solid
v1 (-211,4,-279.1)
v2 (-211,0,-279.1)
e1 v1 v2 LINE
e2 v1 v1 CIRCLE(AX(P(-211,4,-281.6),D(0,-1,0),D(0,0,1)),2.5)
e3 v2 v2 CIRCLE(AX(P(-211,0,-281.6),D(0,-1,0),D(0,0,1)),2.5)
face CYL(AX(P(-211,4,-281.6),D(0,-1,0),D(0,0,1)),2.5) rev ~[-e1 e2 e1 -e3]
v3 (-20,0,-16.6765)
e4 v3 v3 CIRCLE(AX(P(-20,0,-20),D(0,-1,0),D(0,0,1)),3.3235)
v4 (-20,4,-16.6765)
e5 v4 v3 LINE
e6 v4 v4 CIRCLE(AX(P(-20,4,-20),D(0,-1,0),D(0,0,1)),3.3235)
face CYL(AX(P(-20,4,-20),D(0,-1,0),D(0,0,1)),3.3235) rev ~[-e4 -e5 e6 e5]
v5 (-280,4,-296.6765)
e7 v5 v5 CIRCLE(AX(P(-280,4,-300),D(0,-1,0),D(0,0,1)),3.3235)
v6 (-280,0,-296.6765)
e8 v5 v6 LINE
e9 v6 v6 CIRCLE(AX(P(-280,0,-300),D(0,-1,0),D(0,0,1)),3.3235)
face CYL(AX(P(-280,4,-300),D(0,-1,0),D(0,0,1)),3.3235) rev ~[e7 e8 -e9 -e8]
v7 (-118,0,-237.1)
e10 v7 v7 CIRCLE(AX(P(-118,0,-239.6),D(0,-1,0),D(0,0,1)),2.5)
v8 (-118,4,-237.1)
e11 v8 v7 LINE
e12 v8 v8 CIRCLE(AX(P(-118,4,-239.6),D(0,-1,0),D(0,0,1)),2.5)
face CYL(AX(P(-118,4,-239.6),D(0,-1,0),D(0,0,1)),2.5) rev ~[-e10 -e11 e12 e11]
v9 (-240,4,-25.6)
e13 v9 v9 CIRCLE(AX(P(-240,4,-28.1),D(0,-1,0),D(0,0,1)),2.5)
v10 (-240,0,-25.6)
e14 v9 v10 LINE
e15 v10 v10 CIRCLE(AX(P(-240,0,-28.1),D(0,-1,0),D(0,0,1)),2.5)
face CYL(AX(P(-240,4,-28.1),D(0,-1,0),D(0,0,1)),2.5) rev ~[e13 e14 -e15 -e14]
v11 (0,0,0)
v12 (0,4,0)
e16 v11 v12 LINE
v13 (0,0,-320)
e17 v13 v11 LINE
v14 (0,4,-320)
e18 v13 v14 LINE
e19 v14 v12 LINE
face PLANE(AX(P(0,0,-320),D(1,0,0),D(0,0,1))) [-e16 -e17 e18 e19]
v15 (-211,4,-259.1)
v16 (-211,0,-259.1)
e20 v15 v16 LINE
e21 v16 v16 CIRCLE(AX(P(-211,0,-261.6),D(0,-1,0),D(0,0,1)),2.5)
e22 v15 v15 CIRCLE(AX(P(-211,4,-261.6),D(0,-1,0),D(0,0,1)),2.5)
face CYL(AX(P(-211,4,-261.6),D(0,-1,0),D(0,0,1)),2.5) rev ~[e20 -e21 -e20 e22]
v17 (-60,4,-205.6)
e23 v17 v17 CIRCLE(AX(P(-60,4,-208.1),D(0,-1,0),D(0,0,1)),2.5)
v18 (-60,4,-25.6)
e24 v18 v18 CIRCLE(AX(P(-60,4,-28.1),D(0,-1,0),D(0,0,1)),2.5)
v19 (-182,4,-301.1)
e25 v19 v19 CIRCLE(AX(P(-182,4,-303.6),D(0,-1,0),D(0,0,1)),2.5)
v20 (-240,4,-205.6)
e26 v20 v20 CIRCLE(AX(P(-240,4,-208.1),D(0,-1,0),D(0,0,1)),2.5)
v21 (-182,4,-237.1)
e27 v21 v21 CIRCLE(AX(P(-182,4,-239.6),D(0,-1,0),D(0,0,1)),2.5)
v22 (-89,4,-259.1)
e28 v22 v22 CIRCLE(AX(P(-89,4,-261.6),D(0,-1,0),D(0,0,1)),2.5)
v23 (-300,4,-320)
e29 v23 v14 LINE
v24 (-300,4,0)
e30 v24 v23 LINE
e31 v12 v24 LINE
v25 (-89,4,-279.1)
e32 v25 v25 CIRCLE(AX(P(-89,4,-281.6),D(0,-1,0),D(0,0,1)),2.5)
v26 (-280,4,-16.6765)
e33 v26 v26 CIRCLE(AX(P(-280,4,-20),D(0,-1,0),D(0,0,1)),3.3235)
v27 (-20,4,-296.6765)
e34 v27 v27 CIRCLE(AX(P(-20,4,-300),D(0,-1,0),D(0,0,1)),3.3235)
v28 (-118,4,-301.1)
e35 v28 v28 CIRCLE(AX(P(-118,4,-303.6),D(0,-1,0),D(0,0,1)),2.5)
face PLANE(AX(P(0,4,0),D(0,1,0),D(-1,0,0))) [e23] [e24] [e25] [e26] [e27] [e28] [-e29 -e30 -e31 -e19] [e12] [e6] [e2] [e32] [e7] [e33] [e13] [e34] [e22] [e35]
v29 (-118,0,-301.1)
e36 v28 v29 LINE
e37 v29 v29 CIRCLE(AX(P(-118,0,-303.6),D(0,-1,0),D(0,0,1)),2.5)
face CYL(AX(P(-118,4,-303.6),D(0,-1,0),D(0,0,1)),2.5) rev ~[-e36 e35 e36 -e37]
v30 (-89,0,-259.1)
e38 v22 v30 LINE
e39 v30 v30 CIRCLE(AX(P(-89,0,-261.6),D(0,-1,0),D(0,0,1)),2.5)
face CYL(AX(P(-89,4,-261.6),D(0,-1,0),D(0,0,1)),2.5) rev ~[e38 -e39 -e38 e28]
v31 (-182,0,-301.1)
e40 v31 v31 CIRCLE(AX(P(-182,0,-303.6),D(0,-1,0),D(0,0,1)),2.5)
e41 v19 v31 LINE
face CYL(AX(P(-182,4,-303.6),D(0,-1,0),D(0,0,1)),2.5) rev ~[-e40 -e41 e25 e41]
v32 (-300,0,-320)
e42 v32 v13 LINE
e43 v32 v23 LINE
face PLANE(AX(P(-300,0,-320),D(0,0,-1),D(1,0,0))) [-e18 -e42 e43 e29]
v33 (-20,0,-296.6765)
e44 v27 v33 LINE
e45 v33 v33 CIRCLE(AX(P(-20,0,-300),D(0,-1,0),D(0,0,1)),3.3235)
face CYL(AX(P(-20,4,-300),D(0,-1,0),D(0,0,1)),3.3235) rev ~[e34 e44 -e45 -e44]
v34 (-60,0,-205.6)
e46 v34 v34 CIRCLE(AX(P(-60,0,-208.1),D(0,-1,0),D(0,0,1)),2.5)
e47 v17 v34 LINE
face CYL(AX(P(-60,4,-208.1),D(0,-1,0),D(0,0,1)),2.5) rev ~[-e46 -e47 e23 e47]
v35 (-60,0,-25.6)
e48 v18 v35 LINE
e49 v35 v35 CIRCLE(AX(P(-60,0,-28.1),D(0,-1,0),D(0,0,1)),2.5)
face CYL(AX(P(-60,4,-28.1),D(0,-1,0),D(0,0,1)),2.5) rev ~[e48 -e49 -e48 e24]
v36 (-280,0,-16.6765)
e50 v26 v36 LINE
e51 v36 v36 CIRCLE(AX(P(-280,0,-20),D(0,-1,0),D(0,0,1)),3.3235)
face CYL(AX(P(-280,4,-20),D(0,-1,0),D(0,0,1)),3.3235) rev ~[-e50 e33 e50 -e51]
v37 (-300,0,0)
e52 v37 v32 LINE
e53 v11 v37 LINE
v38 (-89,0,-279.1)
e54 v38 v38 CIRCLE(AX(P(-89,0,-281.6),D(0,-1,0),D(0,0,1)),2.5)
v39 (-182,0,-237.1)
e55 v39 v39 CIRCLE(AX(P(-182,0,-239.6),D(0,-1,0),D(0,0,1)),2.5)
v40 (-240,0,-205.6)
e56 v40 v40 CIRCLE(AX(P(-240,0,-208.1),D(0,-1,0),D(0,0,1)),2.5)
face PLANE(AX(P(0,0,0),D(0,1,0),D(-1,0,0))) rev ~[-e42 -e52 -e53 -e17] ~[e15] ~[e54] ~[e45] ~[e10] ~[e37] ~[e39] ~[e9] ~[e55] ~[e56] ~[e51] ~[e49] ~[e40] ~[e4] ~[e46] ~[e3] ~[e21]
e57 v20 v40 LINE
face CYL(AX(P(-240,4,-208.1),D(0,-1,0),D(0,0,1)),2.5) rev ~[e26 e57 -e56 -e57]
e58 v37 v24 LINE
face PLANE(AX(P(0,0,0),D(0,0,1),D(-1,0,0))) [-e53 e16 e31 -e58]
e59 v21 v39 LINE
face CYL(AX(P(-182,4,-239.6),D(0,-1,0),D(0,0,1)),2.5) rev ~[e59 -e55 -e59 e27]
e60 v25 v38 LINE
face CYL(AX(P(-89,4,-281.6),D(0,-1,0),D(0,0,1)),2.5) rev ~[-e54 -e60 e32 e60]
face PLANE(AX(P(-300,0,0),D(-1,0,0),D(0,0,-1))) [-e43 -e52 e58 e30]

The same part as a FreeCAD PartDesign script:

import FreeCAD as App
import Part
import Sketcher

doc = App.newDocument("Part")
body = doc.addObject("PartDesign::Body", "Body")

sketch1 = doc.addObject("Sketcher::SketchObject", "Sketch")
body.addObject(sketch1)
sketch1.AttachmentSupport = (doc.XZ_Plane, [""])
sketch1.MapMode = "FlatFace"
sketch1.addGeometry(Part.LineSegment(App.Vector(-300, 0, 0), App.Vector(0, 0, 0)), False)
sketch1.addGeometry(Part.LineSegment(App.Vector(0, 0, 0), App.Vector(0, -320, 0)), False)
sketch1.addGeometry(Part.LineSegment(App.Vector(0, -320, 0), App.Vector(-300, -320, 0)), False)
sketch1.addGeometry(Part.LineSegment(App.Vector(-300, -320, 0), App.Vector(-300, 0, 0)), False)
sketch1.addConstraint(Sketcher.Constraint("Coincident", 0, 2, 1, 1))
sketch1.addConstraint(Sketcher.Constraint("Coincident", 1, 2, 2, 1))
sketch1.addConstraint(Sketcher.Constraint("Coincident", 2, 2, 3, 1))
sketch1.addConstraint(Sketcher.Constraint("Coincident", 3, 2, 0, 1))
sketch1.addConstraint(Sketcher.Constraint("Horizontal", 0))
sketch1.addConstraint(Sketcher.Constraint("Vertical", 1))
sketch1.addConstraint(Sketcher.Constraint("Horizontal", 2))
sketch1.addConstraint(Sketcher.Constraint("Vertical", 3))
sketch1.addConstraint(Sketcher.Constraint("Coincident", 0, 2, -1, 1))
sketch1.addConstraint(Sketcher.Constraint("DistanceX", 0, 1, 0, 2, 300.0))
sketch1.addConstraint(Sketcher.Constraint("DistanceY", 1, 2, 1, 1, 320.0))
pad1 = doc.addObject("PartDesign::Pad", "Pad")
body.addObject(pad1)
pad1.Profile = sketch1
pad1.Length = 4
pad1.Reversed = True

sketch2 = doc.addObject("Sketcher::SketchObject", "Sketch001")
body.addObject(sketch2)
sketch2.AttachmentSupport = (doc.XZ_Plane, [""])
sketch2.MapMode = "FlatFace"
sketch2.AttachmentOffset = App.Placement(App.Vector(0, 0, -4), App.Rotation())
sketch2.addGeometry(Part.Circle(App.Vector(-182, -239.6, 0), App.Vector(0, 0, 1), 2.5), False)
sketch2.addGeometry(Part.Circle(App.Vector(-182, -303.6, 0), App.Vector(0, 0, 1), 2.5), False)
sketch2.addGeometry(Part.Circle(App.Vector(-118, -239.6, 0), App.Vector(0, 0, 1), 2.5), False)
sketch2.addGeometry(Part.Circle(App.Vector(-118, -303.6, 0), App.Vector(0, 0, 1), 2.5), False)
sketch2.addGeometry(Part.Circle(App.Vector(-211, -261.6, 0), App.Vector(0, 0, 1), 2.5), False)
sketch2.addGeometry(Part.Circle(App.Vector(-211, -281.6, 0), App.Vector(0, 0, 1), 2.5), False)
sketch2.addGeometry(Part.Circle(App.Vector(-89, -281.6, 0), App.Vector(0, 0, 1), 2.5), False)
sketch2.addGeometry(Part.Circle(App.Vector(-89, -261.6, 0), App.Vector(0, 0, 1), 2.5), False)
sketch2.addGeometry(Part.Circle(App.Vector(-240, -28.1, 0), App.Vector(0, 0, 1), 2.5), False)
sketch2.addGeometry(Part.Circle(App.Vector(-240, -208.1, 0), App.Vector(0, 0, 1), 2.5), False)
sketch2.addGeometry(Part.Circle(App.Vector(-60, -208.1, 0), App.Vector(0, 0, 1), 2.5), False)
sketch2.addGeometry(Part.Circle(App.Vector(-60, -28.1, 0), App.Vector(0, 0, 1), 2.5), False)
sketch2.addConstraint(Sketcher.Constraint("Equal", 0, 1))
sketch2.addConstraint(Sketcher.Constraint("Equal", 1, 2))
sketch2.addConstraint(Sketcher.Constraint("Equal", 2, 3))
sketch2.addConstraint(Sketcher.Constraint("Equal", 3, 4))
sketch2.addConstraint(Sketcher.Constraint("Equal", 4, 5))
sketch2.addConstraint(Sketcher.Constraint("Equal", 5, 6))
sketch2.addConstraint(Sketcher.Constraint("Equal", 6, 7))
sketch2.addConstraint(Sketcher.Constraint("Equal", 7, 8))
sketch2.addConstraint(Sketcher.Constraint("Equal", 8, 9))
sketch2.addConstraint(Sketcher.Constraint("Equal", 9, 10))
sketch2.addConstraint(Sketcher.Constraint("Equal", 10, 11))
sketch2.addConstraint(Sketcher.Constraint("Horizontal", 0, 3, 2, 3))
sketch2.addConstraint(Sketcher.Constraint("Horizontal", 1, 3, 3, 3))
sketch2.addConstraint(Sketcher.Constraint("Horizontal", 5, 3, 6, 3))
sketch2.addConstraint(Sketcher.Constraint("Horizontal", 4, 3, 7, 3))
sketch2.addConstraint(Sketcher.Constraint("Horizontal", 9, 3, 10, 3))
sketch2.addConstraint(Sketcher.Constraint("Horizontal", 8, 3, 11, 3))
sketch2.addConstraint(Sketcher.Constraint("Vertical", 0, 3, 1, 3))
sketch2.addConstraint(Sketcher.Constraint("Vertical", 2, 3, 3, 3))
sketch2.addConstraint(Sketcher.Constraint("Vertical", 4, 3, 5, 3))
sketch2.addConstraint(Sketcher.Constraint("Vertical", 6, 3, 7, 3))
sketch2.addConstraint(Sketcher.Constraint("Vertical", 8, 3, 9, 3))
sketch2.addConstraint(Sketcher.Constraint("Vertical", 10, 3, 11, 3))
sketch2.addConstraint(Sketcher.Constraint("Diameter", 0, 5.0))
sketch2.addConstraint(Sketcher.Constraint("DistanceX", 0, 3, -1, 1, 182.0))
sketch2.addConstraint(Sketcher.Constraint("DistanceX", 2, 3, -1, 1, 118.0))
sketch2.addConstraint(Sketcher.Constraint("DistanceX", 4, 3, -1, 1, 211.0))
sketch2.addConstraint(Sketcher.Constraint("DistanceX", 6, 3, -1, 1, 89.0))
sketch2.addConstraint(Sketcher.Constraint("DistanceX", 8, 3, -1, 1, 240.0))
sketch2.addConstraint(Sketcher.Constraint("DistanceX", 10, 3, -1, 1, 60.0))
sketch2.addConstraint(Sketcher.Constraint("DistanceY", 1, 3, 0, 3, 64.0))
sketch2.addConstraint(Sketcher.Constraint("DistanceY", 4, 3, 0, 3, 22.0))
sketch2.addConstraint(Sketcher.Constraint("DistanceY", 5, 3, 4, 3, 20.0))
sketch2.addConstraint(Sketcher.Constraint("DistanceY", 10, 3, 11, 3, 180.0))
sketch2.addConstraint(Sketcher.Constraint("DistanceY", 0, 3, -1, 1, 239.6))
sketch2.addConstraint(Sketcher.Constraint("DistanceY", 8, 3, -1, 1, 28.1))
doc.recompute()
hole = doc.addObject("PartDesign::Hole", "Hole")
body.addObject(hole)
hole.Profile = sketch2
hole.ThreadType = "None"
hole.Diameter = 5
hole.DepthType = "ThroughAll"
hole.Reversed = True

sketch3 = doc.addObject("Sketcher::SketchObject", "Sketch002")
body.addObject(sketch3)
sketch3.AttachmentSupport = (doc.XZ_Plane, [""])
sketch3.MapMode = "FlatFace"
sketch3.AttachmentOffset = App.Placement(App.Vector(0, 0, -4), App.Rotation())
sketch3.addGeometry(Part.Circle(App.Vector(-280, -20, 0), App.Vector(0, 0, 1), 3.3235), False)
sketch3.addGeometry(Part.Circle(App.Vector(-280, -300, 0), App.Vector(0, 0, 1), 3.3235), False)
sketch3.addGeometry(Part.Circle(App.Vector(-20, -20, 0), App.Vector(0, 0, 1), 3.3235), False)
sketch3.addGeometry(Part.Circle(App.Vector(-20, -300, 0), App.Vector(0, 0, 1), 3.3235), False)
sketch3.addConstraint(Sketcher.Constraint("Equal", 0, 1))
sketch3.addConstraint(Sketcher.Constraint("Equal", 1, 2))
sketch3.addConstraint(Sketcher.Constraint("Equal", 2, 3))
sketch3.addConstraint(Sketcher.Constraint("Horizontal", 0, 3, 2, 3))
sketch3.addConstraint(Sketcher.Constraint("Horizontal", 1, 3, 3, 3))
sketch3.addConstraint(Sketcher.Constraint("Vertical", 0, 3, 1, 3))
sketch3.addConstraint(Sketcher.Constraint("Vertical", 2, 3, 3, 3))
sketch3.addConstraint(Sketcher.Constraint("Diameter", 0, 6.647))
sketch3.addConstraint(Sketcher.Constraint("DistanceX", 0, 3, -1, 1, 280.0))
sketch3.addConstraint(Sketcher.Constraint("DistanceY", 0, 3, -1, 1, 20.0))
sketch3.addConstraint(Sketcher.Constraint("DistanceY", 1, 3, -1, 1, 300.0))
sketch3.addConstraint(Sketcher.Constraint("DistanceX", 2, 3, -1, 1, 20.0))
doc.recompute()
hole2 = doc.addObject("PartDesign::Hole", "Hole001")
body.addObject(hole2)
hole2.Profile = sketch3
hole2.ThreadType = "None"
hole2.Diameter = 6.647
hole2.DepthType = "ThroughAll"
hole2.Reversed = True

doc.recompute()
